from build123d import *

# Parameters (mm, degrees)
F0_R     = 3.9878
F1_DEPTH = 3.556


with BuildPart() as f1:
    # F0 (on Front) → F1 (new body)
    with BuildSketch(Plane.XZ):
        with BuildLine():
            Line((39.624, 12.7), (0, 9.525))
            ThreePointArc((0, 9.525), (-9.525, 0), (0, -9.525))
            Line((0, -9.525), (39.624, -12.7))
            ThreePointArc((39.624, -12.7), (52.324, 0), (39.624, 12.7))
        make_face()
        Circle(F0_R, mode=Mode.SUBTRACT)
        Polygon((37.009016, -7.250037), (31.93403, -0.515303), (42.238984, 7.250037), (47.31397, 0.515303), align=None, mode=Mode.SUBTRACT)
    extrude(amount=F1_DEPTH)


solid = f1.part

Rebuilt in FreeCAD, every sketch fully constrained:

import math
import FreeCAD as App
import Part
import Sketcher
Q = App.Units.Quantity

doc = App.newDocument("Part")
body = doc.addObject("PartDesign::Body", "Body")

# Sketch on XZ plane
sketch1 = body.newObject("Sketcher::SketchObject", "Sketch")
sketch1.AttachmentSupport = (doc.getObject("XZ_Plane"), [""])
sketch1.MapMode = "FlatFace"
sketch1.addGeometry([
    Part.LineSegment(App.Vector(39.6, 12.7, 0), App.Vector(0, 9.5, 0)),  # 0
    Part.ArcOfCircle(Part.Circle(App.Vector(0, 0, 0), App.Vector(0, 0, 1), 9.5), math.radians(90), math.radians(270)),  # 1
    Part.LineSegment(App.Vector(0, -9.5, 0), App.Vector(39.6, -12.7, 0)),  # 2
    Part.ArcOfCircle(Part.Circle(App.Vector(39.6, 0, 0), App.Vector(0, 0, 1), 12.7), math.radians(-90), math.radians(90)),  # 3
    Part.Circle(App.Vector(0, 0, 0), App.Vector(0, 0, 1), 4),  # 4
    Part.LineSegment(App.Vector(47.3, 0.5, 0), App.Vector(37, -7.3, 0)),  # 5
    Part.LineSegment(App.Vector(37, -7.3, 0), App.Vector(31.9, -0.5, 0)),  # 6
    Part.LineSegment(App.Vector(31.9, -0.5, 0), App.Vector(42.2, 7.3, 0)),  # 7
    Part.LineSegment(App.Vector(42.2, 7.3, 0), App.Vector(47.3, 0.5, 0)),  # 8
], False)
sketch1.addConstraint([
    Sketcher.Constraint("Coincident", 0, 2, 1, 1),
    Sketcher.Constraint("Coincident", 1, 2, 2, 1),
    Sketcher.Constraint("Coincident", 2, 2, 3, 1),
    Sketcher.Constraint("Coincident", 3, 2, 0, 1),
    Sketcher.Constraint("Coincident", 5, 2, 6, 1),
    Sketcher.Constraint("Coincident", 6, 2, 7, 1),
    Sketcher.Constraint("Coincident", 7, 2, 8, 1),
    Sketcher.Constraint("Coincident", 8, 2, 5, 1),
    Sketcher.Constraint("Coincident", 1, 3, -1, 1),
    Sketcher.Constraint("Coincident", 4, 3, -1, 1),
    Sketcher.Constraint("Symmetric", 2, 2, 3, 2, -1),
    Sketcher.Constraint("PointOnObject", 0, 2, -2),
    Sketcher.Constraint("PointOnObject", 1, 2, -2),
    Sketcher.Constraint("Perpendicular", 5, 6),
    Sketcher.Constraint("Perpendicular", 6, 7),
    Sketcher.Constraint("Perpendicular", 7, 8),
    Sketcher.Constraint("Vertical", 3, 3, 2, 2),
    Sketcher.Constraint("Radius", 3, Q("0.5 in")),
    Sketcher.Constraint("Diameter", 4, Q("0.314 in")),
    Sketcher.Constraint("Angle", 5, Q("-142.999999 deg")),
    Sketcher.Constraint("Radius", 1, Q("0.375 in")),
    Sketcher.Constraint("DistanceX", -1, 1, 3, 3, Q("1.56 in")),
    Sketcher.Constraint("Distance", 5, Q("0.508 in")),
    Sketcher.Constraint("Distance", 6, Q("0.332 in")),
    Sketcher.Constraint("DistanceX", -1, 1, 6, 2, 31.93403),
    Sketcher.Constraint("DistanceY", 5, 2, -1, 1, 7.250037),
])
pad1 = body.newObject("PartDesign::Pad", "Pad")
pad1.Profile = sketch1
pad1.Length = Q("0.14 in")

doc.recompute()
